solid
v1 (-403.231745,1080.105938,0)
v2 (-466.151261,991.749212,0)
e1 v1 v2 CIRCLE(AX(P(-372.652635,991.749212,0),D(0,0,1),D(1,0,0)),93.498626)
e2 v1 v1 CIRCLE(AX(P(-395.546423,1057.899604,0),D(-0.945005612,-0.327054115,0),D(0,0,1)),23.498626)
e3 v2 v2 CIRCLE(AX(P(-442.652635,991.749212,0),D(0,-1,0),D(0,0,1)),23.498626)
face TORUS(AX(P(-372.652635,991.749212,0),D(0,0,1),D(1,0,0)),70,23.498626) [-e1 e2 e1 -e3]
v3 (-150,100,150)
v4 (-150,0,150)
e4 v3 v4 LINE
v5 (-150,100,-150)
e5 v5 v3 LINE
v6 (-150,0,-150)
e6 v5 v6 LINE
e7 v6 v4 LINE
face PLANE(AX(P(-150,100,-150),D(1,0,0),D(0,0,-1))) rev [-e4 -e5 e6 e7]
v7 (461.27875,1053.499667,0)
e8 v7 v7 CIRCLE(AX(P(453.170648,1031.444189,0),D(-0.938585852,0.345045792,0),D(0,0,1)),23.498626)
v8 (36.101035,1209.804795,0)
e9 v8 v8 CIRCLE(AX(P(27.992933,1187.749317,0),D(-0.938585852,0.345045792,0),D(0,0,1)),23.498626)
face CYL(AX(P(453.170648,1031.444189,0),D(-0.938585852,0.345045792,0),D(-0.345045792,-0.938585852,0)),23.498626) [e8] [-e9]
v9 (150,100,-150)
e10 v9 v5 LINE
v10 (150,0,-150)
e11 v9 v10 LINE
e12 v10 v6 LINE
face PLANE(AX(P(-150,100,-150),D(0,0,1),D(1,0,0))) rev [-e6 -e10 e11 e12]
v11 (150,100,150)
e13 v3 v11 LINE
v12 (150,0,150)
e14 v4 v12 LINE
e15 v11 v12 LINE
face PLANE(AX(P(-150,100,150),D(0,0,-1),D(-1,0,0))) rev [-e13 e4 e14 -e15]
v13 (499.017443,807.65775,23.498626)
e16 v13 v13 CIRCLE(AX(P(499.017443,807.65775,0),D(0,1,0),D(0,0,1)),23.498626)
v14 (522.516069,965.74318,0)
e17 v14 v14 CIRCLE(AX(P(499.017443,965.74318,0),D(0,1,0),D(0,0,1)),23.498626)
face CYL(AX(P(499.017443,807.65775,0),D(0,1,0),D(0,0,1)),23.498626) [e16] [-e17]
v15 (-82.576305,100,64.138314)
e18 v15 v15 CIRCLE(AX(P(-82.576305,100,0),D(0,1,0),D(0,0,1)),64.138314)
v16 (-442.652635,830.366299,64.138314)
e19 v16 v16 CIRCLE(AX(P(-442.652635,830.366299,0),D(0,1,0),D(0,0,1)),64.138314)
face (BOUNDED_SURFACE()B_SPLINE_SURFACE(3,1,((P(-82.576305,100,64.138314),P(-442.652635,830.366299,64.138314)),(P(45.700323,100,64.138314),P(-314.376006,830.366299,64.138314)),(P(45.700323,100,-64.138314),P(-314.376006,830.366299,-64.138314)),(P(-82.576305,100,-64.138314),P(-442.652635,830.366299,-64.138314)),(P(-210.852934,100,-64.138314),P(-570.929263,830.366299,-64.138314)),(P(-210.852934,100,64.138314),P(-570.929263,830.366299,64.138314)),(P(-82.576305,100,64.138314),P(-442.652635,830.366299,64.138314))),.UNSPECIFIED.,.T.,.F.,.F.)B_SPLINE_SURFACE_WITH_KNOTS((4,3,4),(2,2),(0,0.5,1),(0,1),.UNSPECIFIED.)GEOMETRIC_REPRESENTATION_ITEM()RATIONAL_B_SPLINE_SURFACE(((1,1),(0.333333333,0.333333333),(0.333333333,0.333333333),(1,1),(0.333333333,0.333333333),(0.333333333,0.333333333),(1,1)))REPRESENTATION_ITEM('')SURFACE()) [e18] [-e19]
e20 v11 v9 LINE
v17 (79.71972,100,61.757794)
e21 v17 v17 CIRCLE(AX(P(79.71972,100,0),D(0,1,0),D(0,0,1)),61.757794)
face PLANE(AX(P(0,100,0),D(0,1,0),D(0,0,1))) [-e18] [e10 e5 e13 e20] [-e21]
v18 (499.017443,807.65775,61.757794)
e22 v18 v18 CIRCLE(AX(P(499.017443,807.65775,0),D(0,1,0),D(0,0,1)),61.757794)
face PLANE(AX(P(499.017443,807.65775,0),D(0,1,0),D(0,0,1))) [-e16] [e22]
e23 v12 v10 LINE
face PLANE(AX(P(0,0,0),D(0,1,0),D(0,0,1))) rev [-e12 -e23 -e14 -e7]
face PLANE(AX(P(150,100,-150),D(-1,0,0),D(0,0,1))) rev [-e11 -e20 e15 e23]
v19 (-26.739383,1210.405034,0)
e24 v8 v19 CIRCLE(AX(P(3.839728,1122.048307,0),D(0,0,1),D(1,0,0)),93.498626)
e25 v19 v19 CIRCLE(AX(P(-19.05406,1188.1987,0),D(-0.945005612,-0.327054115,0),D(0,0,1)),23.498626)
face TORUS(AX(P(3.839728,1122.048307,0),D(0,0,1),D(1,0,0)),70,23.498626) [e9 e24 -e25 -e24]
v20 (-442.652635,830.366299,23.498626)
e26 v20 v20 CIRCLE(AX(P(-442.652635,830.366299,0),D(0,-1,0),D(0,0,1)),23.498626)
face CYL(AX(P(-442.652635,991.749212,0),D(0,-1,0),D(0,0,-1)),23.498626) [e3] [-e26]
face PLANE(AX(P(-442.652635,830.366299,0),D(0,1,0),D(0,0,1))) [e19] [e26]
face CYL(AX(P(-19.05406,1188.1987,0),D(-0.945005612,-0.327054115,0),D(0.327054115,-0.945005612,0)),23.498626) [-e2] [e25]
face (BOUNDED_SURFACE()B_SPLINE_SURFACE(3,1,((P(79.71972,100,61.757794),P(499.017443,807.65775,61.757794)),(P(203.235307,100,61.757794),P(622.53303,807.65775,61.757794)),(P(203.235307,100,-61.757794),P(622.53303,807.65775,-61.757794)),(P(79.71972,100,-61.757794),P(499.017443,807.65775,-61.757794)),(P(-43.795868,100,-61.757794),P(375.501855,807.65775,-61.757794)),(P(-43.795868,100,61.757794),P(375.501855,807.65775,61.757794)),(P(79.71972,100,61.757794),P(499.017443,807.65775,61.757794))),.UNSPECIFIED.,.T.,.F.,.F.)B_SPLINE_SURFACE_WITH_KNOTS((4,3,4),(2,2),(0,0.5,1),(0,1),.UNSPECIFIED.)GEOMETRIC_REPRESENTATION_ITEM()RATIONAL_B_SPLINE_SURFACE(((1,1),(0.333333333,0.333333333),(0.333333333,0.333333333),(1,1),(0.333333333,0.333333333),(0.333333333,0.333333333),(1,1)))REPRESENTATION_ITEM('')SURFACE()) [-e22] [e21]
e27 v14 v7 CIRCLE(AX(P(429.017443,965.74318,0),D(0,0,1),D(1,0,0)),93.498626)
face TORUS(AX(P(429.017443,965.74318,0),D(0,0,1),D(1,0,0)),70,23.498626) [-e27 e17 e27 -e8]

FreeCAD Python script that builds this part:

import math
import FreeCAD as App
import Part
import Sketcher
from FreeCAD import Vector
Q = App.Units.Quantity


def add_polygon(sketch, points):
    """Adds a closed chain of lines whose ends are joined by coincident constraints."""
    first, n = sketch.GeometryCount, len(points)
    for a, b in zip(points, points[1:] + points[:1]):
        sketch.addGeometry(Part.LineSegment(App.Vector(*a, 0), App.Vector(*b, 0)), False)
    for i in range(n):
        sketch.addConstraint(Sketcher.Constraint("Coincident", first + i, 2, first + (i + 1) % n, 1))

doc = App.newDocument("Part")
body = doc.addObject("PartDesign::Body", "Body")

sketch1 = body.newObject("Sketcher::SketchObject", "Sketch")
sketch1.AttachmentSupport = (doc.getObject("XZ_Plane"), [""])
sketch1.MapMode = "FlatFace"
add_polygon(sketch1, [(-150, -150), (-150, 150), (150, 150), (150, -150)])
sketch1.addConstraint([
    Sketcher.Constraint("Vertical", 0),
    Sketcher.Constraint("Horizontal", 1),
    Sketcher.Constraint("Vertical", 2),
    Sketcher.Constraint("Horizontal", 3),
    Sketcher.Constraint("Symmetric", 0, 2, 2, 2, -1, 1),
    Sketcher.Constraint("Equal", 3, 0),
    Sketcher.Constraint("DistanceX", 1, 1, 1, 2, Q("300 mm")),
])
pad1 = body.newObject("PartDesign::Pad", "Pad")
pad1.Profile = sketch1
pad1.Length = 100
pad1.Reversed = True

sketch2 = body.newObject("Sketcher::SketchObject", "Sketch001")
sketch2.AttachmentSupport = (doc.getObject("XZ_Plane"), [""])
sketch2.MapMode = "FlatFace"
sketch2.AttachmentOffset = App.Placement(Vector(0, 0, -100), App.Rotation())
sketch2.addGeometry(Part.Circle(Vector(80, 0, 0), Vector(0, 0, 1), 62), False)
sketch2.addConstraint([
    Sketcher.Constraint("PointOnObject", 0, 3, -1),
    Sketcher.Constraint("Diameter", 0, Q("123.515587 mm")),
    Sketcher.Constraint("DistanceX", -1, 1, 0, 3, Q("79.71972 mm")),
])

sketch3 = body.newObject("Sketcher::SketchObject", "Sketch002")
sketch3.Placement = App.Placement(Vector(15.149605, -8.976366, 0), App.Rotation(Vector(0.509752887, 0.860320867, 0), Vector(0, 0, 1), Vector(0.860320867, -0.509752887, 0), "ZXY"))
sketch3.addGeometry(Part.LineSegment(Vector(127, 0, 0), Vector(949, 0, 0)), False)
sketch3.addConstraint([
    Sketcher.Constraint("Horizontal", 0),
    Sketcher.Constraint("PointOnObject", 0, 1, -1),
    Sketcher.Constraint("DistanceX", 0, 1, 0, 2, Q("822.550953 mm")),
    Sketcher.Constraint("DistanceX", -1, 1, 0, 1, Q("126.669444 mm")),
])
doc.recompute()

additivepipe = body.newObject("PartDesign::AdditivePipe", "AdditivePipe")
additivepipe.Profile = sketch2
additivepipe.Spine = (sketch3, ["Edge1"])

sketch4 = body.newObject("Sketcher::SketchObject", "Sketch003")
sketch4.AttachmentSupport = (doc.getObject("XZ_Plane"), [""])
sketch4.MapMode = "FlatFace"
sketch4.AttachmentOffset = App.Placement(Vector(0, 0, -100), App.Rotation())
sketch4.addGeometry(Part.Circle(Vector(-83, 0, 0), Vector(0, 0, 1), 64), False)
sketch4.addConstraint([
    Sketcher.Constraint("PointOnObject", 0, 3, -1),
    Sketcher.Constraint("Diameter", 0, Q("128.276628 mm")),
    Sketcher.Constraint("DistanceX", 0, 3, -1, 1, Q("82.576305 mm")),
])

sketch5 = body.newObject("Sketcher::SketchObject", "Sketch004")
sketch5.Placement = App.Placement(Vector(-26.769107, -13.19738, 0), App.Rotation(Vector(-0.442189442, 0.896921679, 0), Vector(0, 0, 1.000000001), Vector(0.896921679, 0.442189442, 0), "ZXY"))
sketch5.addGeometry(Part.LineSegment(Vector(126, 0, 0), Vector(941, 0, 0)), False)
sketch5.addConstraint([
    Sketcher.Constraint("Horizontal", 0),
    Sketcher.Constraint("PointOnObject", 0, 1, -1),
    Sketcher.Constraint("DistanceX", 0, 1, 0, 2, Q("814.303319 mm")),
    Sketcher.Constraint("DistanceX", -1, 1, 0, 1, Q("126.206538 mm")),
])
doc.recompute()

additivepipe2 = body.newObject("PartDesign::AdditivePipe", "AdditivePipe001")
additivepipe2.Profile = sketch4
additivepipe2.Spine = (sketch5, ["Edge1"])

sketch6 = body.newObject("Sketcher::SketchObject", "Sketch005")
sketch6.AttachmentSupport = (doc.getObject("XZ_Plane"), [""])
sketch6.MapMode = "FlatFace"
sketch6.AttachmentOffset = App.Placement(Vector(0, 0, -807.65775), App.Rotation())
sketch6.addGeometry(Part.Circle(Vector(499, 0, 0), Vector(0, 0, 1), 23), False)
sketch6.addConstraint([
    Sketcher.Constraint("PointOnObject", 0, 3, -1),
    Sketcher.Constraint("Diameter", 0, Q("46.997253 mm")),
    Sketcher.Constraint("DistanceX", -1, 1, 0, 3, Q("499.017443 mm")),
])

sketch7 = body.newObject("Sketcher::SketchObject", "Sketch006")
sketch7.AttachmentSupport = (doc.getObject("XY_Plane"), [""])
sketch7.MapMode = "FlatFace"
sketch7.addGeometry([
    Part.LineSegment(Vector(499, 808, 0), Vector(499, 966, 0)),
    Part.ArcOfCircle(Part.Circle(Vector(429, 966, 0), Vector(0, 0, 1), 70), math.radians(0), math.radians(70)),
    Part.LineSegment(Vector(453, 1031, 0), Vector(28, 1188, 0)),
    Part.ArcOfCircle(Part.Circle(Vector(4, 1122, 0), Vector(0, 0, 1), 70), math.radians(70), math.radians(109)),
    Part.LineSegment(Vector(-19, 1188, 0), Vector(-396, 1058, 0)),
    Part.ArcOfCircle(Part.Circle(Vector(-373, 992, 0), Vector(0, 0, 1), 70), math.radians(109), math.radians(180)),
    Part.LineSegment(Vector(-443, 992, 0), Vector(-443, 830, 0)),
], False)
sketch7.addConstraint([
    Sketcher.Constraint("Tangent", 0, 2, 1, 1),
    Sketcher.Constraint("Tangent", 1, 2, 2, 1),
    Sketcher.Constraint("Tangent", 2, 2, 3, 1),
    Sketcher.Constraint("Tangent", 3, 2, 4, 1),
    Sketcher.Constraint("Tangent", 4, 2, 5, 1),
    Sketcher.Constraint("Tangent", 5, 2, 6, 1),
    Sketcher.Constraint("Vertical", 0),
    Sketcher.Constraint("Vertical", 6),
    Sketcher.Constraint("Equal", 1, 3),
    Sketcher.Constraint("Equal", 3, 5),
    Sketcher.Constraint("Radius", 1, Q("70 mm")),
    Sketcher.Constraint("DistanceY", 0, 1, 0, 2, Q("158.08543 mm")),
    Sketcher.Constraint("DistanceY", -1, 1, 3, 2, Q("1188.1987 mm")),
    Sketcher.Constraint("DistanceY", -1, 1, 6, 2, Q("830.366299 mm")),
    Sketcher.Constraint("Distance", 4, Q("398.402251 mm")),
    Sketcher.Constraint("DistanceY", 6, 2, 6, 1, Q("161.382913 mm")),
    Sketcher.Constraint("DistanceY", -1, 1, 1, 3, Q("965.74318 mm")),
    Sketcher.Constraint("DistanceX", -1, 1, 1, 2, Q("453.170648 mm")),
    Sketcher.Constraint("DistanceX", 3, 2, -1, 1, Q("19.05406 mm")),
])
doc.recompute()

additivepipe3 = body.newObject("PartDesign::AdditivePipe", "AdditivePipe002")
additivepipe3.Profile = sketch6
additivepipe3.Spine = (sketch7, ["Edge1", "Edge2", "Edge3", "Edge4", "Edge5", "Edge6", "Edge7"])

doc.recompute()
